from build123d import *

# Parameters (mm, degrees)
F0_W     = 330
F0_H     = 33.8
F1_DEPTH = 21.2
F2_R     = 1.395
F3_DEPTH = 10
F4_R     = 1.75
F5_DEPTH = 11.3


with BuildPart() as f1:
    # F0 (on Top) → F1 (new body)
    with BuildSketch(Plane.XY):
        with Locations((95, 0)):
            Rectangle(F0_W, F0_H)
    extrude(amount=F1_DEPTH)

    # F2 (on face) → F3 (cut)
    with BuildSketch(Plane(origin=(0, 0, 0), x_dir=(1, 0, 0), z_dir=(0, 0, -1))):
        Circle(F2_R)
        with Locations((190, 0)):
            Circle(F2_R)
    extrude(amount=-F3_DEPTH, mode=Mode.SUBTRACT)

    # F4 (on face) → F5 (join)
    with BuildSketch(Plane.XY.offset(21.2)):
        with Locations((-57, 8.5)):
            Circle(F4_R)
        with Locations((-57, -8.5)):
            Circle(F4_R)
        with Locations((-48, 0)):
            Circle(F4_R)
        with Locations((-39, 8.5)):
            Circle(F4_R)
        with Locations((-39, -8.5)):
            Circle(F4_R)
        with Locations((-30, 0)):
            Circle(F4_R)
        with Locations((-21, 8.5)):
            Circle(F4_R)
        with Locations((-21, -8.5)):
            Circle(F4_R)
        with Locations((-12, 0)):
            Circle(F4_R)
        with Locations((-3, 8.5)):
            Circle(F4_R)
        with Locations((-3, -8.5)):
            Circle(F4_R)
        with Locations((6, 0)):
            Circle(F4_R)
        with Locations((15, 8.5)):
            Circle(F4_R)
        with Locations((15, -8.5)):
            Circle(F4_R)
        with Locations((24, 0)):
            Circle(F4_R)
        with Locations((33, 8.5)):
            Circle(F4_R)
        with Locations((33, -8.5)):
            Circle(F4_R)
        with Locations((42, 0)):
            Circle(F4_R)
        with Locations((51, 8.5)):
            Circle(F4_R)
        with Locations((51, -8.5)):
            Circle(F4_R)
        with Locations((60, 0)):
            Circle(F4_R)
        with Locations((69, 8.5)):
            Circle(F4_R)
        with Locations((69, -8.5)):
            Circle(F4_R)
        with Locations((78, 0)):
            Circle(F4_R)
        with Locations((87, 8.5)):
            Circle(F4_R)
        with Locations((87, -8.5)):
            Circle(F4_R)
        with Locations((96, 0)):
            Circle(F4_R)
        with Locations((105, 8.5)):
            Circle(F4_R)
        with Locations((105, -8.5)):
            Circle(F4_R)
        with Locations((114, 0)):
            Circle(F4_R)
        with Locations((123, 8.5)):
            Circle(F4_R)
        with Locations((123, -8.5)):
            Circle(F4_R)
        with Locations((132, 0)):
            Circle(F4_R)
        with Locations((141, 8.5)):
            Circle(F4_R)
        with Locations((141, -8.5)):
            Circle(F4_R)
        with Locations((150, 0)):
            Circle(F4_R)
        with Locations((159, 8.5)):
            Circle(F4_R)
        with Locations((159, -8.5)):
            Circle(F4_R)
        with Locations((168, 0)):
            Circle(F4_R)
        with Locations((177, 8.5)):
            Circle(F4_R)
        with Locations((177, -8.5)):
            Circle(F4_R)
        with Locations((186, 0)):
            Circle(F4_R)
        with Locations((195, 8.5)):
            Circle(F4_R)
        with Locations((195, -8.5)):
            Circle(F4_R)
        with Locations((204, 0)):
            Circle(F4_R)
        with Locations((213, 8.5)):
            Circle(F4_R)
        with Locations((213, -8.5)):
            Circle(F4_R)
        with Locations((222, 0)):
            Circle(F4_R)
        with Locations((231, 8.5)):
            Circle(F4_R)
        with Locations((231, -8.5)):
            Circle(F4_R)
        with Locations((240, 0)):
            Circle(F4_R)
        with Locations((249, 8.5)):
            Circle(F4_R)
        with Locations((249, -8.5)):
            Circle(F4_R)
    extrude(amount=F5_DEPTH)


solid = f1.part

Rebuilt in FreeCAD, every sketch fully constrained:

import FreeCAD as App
import Part
import Sketcher

V = App.Vector
Q = App.Units.Quantity

doc = App.newDocument("Part")
body = doc.addObject("PartDesign::Body", "Body")

# Sketch on XY plane
sketch1 = doc.addObject("Sketcher::SketchObject", "Sketch")
body.addObject(sketch1)
sketch1.AttachmentSupport = (doc.XY_Plane, [""])
sketch1.MapMode = "FlatFace"
sketch1.addGeometry(Part.LineSegment(V(-70, 16.9, 0), V(-70, -16.9, 0)), False)
sketch1.addGeometry(Part.LineSegment(V(-70, -16.9, 0), V(260, -16.9, 0)), False)
sketch1.addGeometry(Part.LineSegment(V(260, -16.9, 0), V(260, 16.9, 0)), False)
sketch1.addGeometry(Part.LineSegment(V(260, 16.9, 0), V(-70, 16.9, 0)), False)
sketch1.addConstraint(Sketcher.Constraint("Coincident", 0, 2, 1, 1))
sketch1.addConstraint(Sketcher.Constraint("Coincident", 1, 2, 2, 1))
sketch1.addConstraint(Sketcher.Constraint("Coincident", 2, 2, 3, 1))
sketch1.addConstraint(Sketcher.Constraint("Coincident", 3, 2, 0, 1))
sketch1.addConstraint(Sketcher.Constraint("Vertical", 0))
sketch1.addConstraint(Sketcher.Constraint("Horizontal", 1))
sketch1.addConstraint(Sketcher.Constraint("Vertical", 2))
sketch1.addConstraint(Sketcher.Constraint("Horizontal", 3))
sketch1.addConstraint(Sketcher.Constraint("DistanceX", 1, 1, 1, 2, Q("330 mm")))
sketch1.addConstraint(Sketcher.Constraint("DistanceY", 0, 2, 0, 1, Q("33.8 mm")))
sketch1.addConstraint(Sketcher.Constraint("DistanceX", 0, 2, -1, 1, Q("70 mm")))
sketch1.addConstraint(Sketcher.Constraint("DistanceY", 0, 2, -1, 1, Q("16.9 mm")))
pad1 = doc.addObject("PartDesign::Pad", "Pad")
body.addObject(pad1)
pad1.Profile = sketch1
pad1.Length = 21.2

# Sketch on XY plane
sketch2 = doc.addObject("Sketcher::SketchObject", "Sketch001")
body.addObject(sketch2)
sketch2.AttachmentSupport = (doc.XY_Plane, [""])
sketch2.MapMode = "FlatFace"
sketch2.addGeometry(Part.Circle(V(0, 0, 0), V(0, 0, 1), 1.395), False)
sketch2.addGeometry(Part.Circle(V(190, 0, 0), V(0, 0, 1), 1.395), False)
sketch2.addConstraint(Sketcher.Constraint("Coincident", 0, 3, -1, 1))
sketch2.addConstraint(Sketcher.Constraint("Equal", 0, 1))
sketch2.addConstraint(Sketcher.Constraint("PointOnObject", 1, 3, -1))
sketch2.addConstraint(Sketcher.Constraint("Diameter", 0, Q("2.79 mm")))
sketch2.addConstraint(Sketcher.Constraint("DistanceX", -1, 1, 1, 3, Q("190 mm")))
pocket1 = doc.addObject("PartDesign::Pocket", "Pocket")
body.addObject(pocket1)
pocket1.Profile = sketch2
pocket1.Length = 10
pocket1.Reversed = True

# Sketch on XY plane
sketch3 = doc.addObject("Sketcher::SketchObject", "Sketch002")
body.addObject(sketch3)
sketch3.AttachmentSupport = (doc.XY_Plane, [""])
sketch3.MapMode = "FlatFace"
sketch3.AttachmentOffset = App.Placement(V(0, 0, 21.2), App.Rotation())
sketch3.addGeometry(Part.Circle(V(-57, 8.5, 0), V(0, 0, 1), 1.75), False)
sketch3.addGeometry(Part.Circle(V(-57, -8.5, 0), V(0, 0, 1), 1.75), False)
sketch3.addGeometry(Part.Circle(V(-48, 0, 0), V(0, 0, 1), 1.75), False)
sketch3.addGeometry(Part.Circle(V(-39, 8.5, 0), V(0, 0, 1), 1.75), False)
sketch3.addGeometry(Part.Circle(V(-39, -8.5, 0), V(0, 0, 1), 1.75), False)
sketch3.addGeometry(Part.Circle(V(-30, 0, 0), V(0, 0, 1), 1.75), False)
sketch3.addGeometry(Part.Circle(V(-21, 8.5, 0), V(0, 0, 1), 1.75), False)
sketch3.addGeometry(Part.Circle(V(-21, -8.5, 0), V(0, 0, 1), 1.75), False)
sketch3.addGeometry(Part.Circle(V(-12, 0, 0), V(0, 0, 1), 1.75), False)
sketch3.addGeometry(Part.Circle(V(-3, 8.5, 0), V(0, 0, 1), 1.75), False)
sketch3.addGeometry(Part.Circle(V(-3, -8.5, 0), V(0, 0, 1), 1.75), False)
sketch3.addGeometry(Part.Circle(V(6, 0, 0), V(0, 0, 1), 1.75), False)
sketch3.addGeometry(Part.Circle(V(15, 8.5, 0), V(0, 0, 1), 1.75), False)
sketch3.addGeometry(Part.Circle(V(15, -8.5, 0), V(0, 0, 1), 1.75), False)
sketch3.addGeometry(Part.Circle(V(24, 0, 0), V(0, 0, 1), 1.75), False)
sketch3.addGeometry(Part.Circle(V(33, 8.5, 0), V(0, 0, 1), 1.75), False)
sketch3.addGeometry(Part.Circle(V(33, -8.5, 0), V(0, 0, 1), 1.75), False)
sketch3.addGeometry(Part.Circle(V(42, 0, 0), V(0, 0, 1), 1.75), False)
sketch3.addGeometry(Part.Circle(V(51, 8.5, 0), V(0, 0, 1), 1.75), False)
sketch3.addGeometry(Part.Circle(V(51, -8.5, 0), V(0, 0, 1), 1.75), False)
sketch3.addGeometry(Part.Circle(V(60, 0, 0), V(0, 0, 1), 1.75), False)
sketch3.addGeometry(Part.Circle(V(69, 8.5, 0), V(0, 0, 1), 1.75), False)
sketch3.addGeometry(Part.Circle(V(69, -8.5, 0), V(0, 0, 1), 1.75), False)
sketch3.addGeometry(Part.Circle(V(78, 0, 0), V(0, 0, 1), 1.75), False)
sketch3.addGeometry(Part.Circle(V(87, 8.5, 0), V(0, 0, 1), 1.75), False)
sketch3.addGeometry(Part.Circle(V(87, -8.5, 0), V(0, 0, 1), 1.75), False)
sketch3.addGeometry(Part.Circle(V(96, 0, 0), V(0, 0, 1), 1.75), False)
sketch3.addGeometry(Part.Circle(V(105, 8.5, 0), V(0, 0, 1), 1.75), False)
sketch3.addGeometry(Part.Circle(V(105, -8.5, 0), V(0, 0, 1), 1.75), False)
sketch3.addGeometry(Part.Circle(V(114, 0, 0), V(0, 0, 1), 1.75), False)
sketch3.addGeometry(Part.Circle(V(123, 8.5, 0), V(0, 0, 1), 1.75), False)
sketch3.addGeometry(Part.Circle(V(123, -8.5, 0), V(0, 0, 1), 1.75), False)
sketch3.addGeometry(Part.Circle(V(132, 0, 0), V(0, 0, 1), 1.75), False)
sketch3.addGeometry(Part.Circle(V(141, 8.5, 0), V(0, 0, 1), 1.75), False)
sketch3.addGeometry(Part.Circle(V(141, -8.5, 0), V(0, 0, 1), 1.75), False)
sketch3.addGeometry(Part.Circle(V(150, 0, 0), V(0, 0, 1), 1.75), False)
sketch3.addGeometry(Part.Circle(V(159, 8.5, 0), V(0, 0, 1), 1.75), False)
sketch3.addGeometry(Part.Circle(V(159, -8.5, 0), V(0, 0, 1), 1.75), False)
sketch3.addGeometry(Part.Circle(V(168, 0, 0), V(0, 0, 1), 1.75), False)
sketch3.addGeometry(Part.Circle(V(177, 8.5, 0), V(0, 0, 1), 1.75), False)
sketch3.addGeometry(Part.Circle(V(177, -8.5, 0), V(0, 0, 1), 1.75), False)
sketch3.addGeometry(Part.Circle(V(186, 0, 0), V(0, 0, 1), 1.75), False)
sketch3.addGeometry(Part.Circle(V(195, 8.5, 0), V(0, 0, 1), 1.75), False)
sketch3.addGeometry(Part.Circle(V(195, -8.5, 0), V(0, 0, 1), 1.75), False)
sketch3.addGeometry(Part.Circle(V(204, 0, 0), V(0, 0, 1), 1.75), False)
sketch3.addGeometry(Part.Circle(V(213, 8.5, 0), V(0, 0, 1), 1.75), False)
sketch3.addGeometry(Part.Circle(V(213, -8.5, 0), V(0, 0, 1), 1.75), False)
sketch3.addGeometry(Part.Circle(V(222, 0, 0), V(0, 0, 1), 1.75), False)
sketch3.addGeometry(Part.Circle(V(231, 8.5, 0), V(0, 0, 1), 1.75), False)
sketch3.addGeometry(Part.Circle(V(231, -8.5, 0), V(0, 0, 1), 1.75), False)
sketch3.addGeometry(Part.Circle(V(240, 0, 0), V(0, 0, 1), 1.75), False)
sketch3.addGeometry(Part.Circle(V(249, 8.5, 0), V(0, 0, 1), 1.75), False)
sketch3.addGeometry(Part.Circle(V(249, -8.5, 0), V(0, 0, 1), 1.75), False)
sketch3.addConstraint(Sketcher.Constraint("Equal", 0, 1))
sketch3.addConstraint(Sketcher.Constraint("Equal", 1, 2))
sketch3.addConstraint(Sketcher.Constraint("Equal", 2, 3))
sketch3.addConstraint(Sketcher.Constraint("Equal", 3, 4))
sketch3.addConstraint(Sketcher.Constraint("Equal", 4, 5))
sketch3.addConstraint(Sketcher.Constraint("Equal", 5, 6))
sketch3.addConstraint(Sketcher.Constraint("Equal", 6, 7))
sketch3.addConstraint(Sketcher.Constraint("Equal", 7, 8))
sketch3.addConstraint(Sketcher.Constraint("Equal", 8, 9))
sketch3.addConstraint(Sketcher.Constraint("Equal", 9, 10))
sketch3.addConstraint(Sketcher.Constraint("Equal", 10, 11))
sketch3.addConstraint(Sketcher.Constraint("Equal", 11, 12))
sketch3.addConstraint(Sketcher.Constraint("Equal", 12, 13))
sketch3.addConstraint(Sketcher.Constraint("Equal", 13, 14))
sketch3.addConstraint(Sketcher.Constraint("Equal", 14, 15))
sketch3.addConstraint(Sketcher.Constraint("Equal", 15, 16))
sketch3.addConstraint(Sketcher.Constraint("Equal", 16, 17))
sketch3.addConstraint(Sketcher.Constraint("Equal", 17, 18))
sketch3.addConstraint(Sketcher.Constraint("Equal", 18, 19))
sketch3.addConstraint(Sketcher.Constraint("Equal", 19, 20))
sketch3.addConstraint(Sketcher.Constraint("Equal", 20, 21))
sketch3.addConstraint(Sketcher.Constraint("Equal", 21, 22))
sketch3.addConstraint(Sketcher.Constraint("Equal", 22, 23))
sketch3.addConstraint(Sketcher.Constraint("Equal", 23, 24))
sketch3.addConstraint(Sketcher.Constraint("Equal", 24, 25))
sketch3.addConstraint(Sketcher.Constraint("Equal", 25, 26))
sketch3.addConstraint(Sketcher.Constraint("Equal", 26, 27))
sketch3.addConstraint(Sketcher.Constraint("Equal", 27, 28))
sketch3.addConstraint(Sketcher.Constraint("Equal", 28, 29))
sketch3.addConstraint(Sketcher.Constraint("Equal", 29, 30))
sketch3.addConstraint(Sketcher.Constraint("Equal", 30, 31))
sketch3.addConstraint(Sketcher.Constraint("Equal", 31, 32))
sketch3.addConstraint(Sketcher.Constraint("Equal", 32, 33))
sketch3.addConstraint(Sketcher.Constraint("Equal", 33, 34))
sketch3.addConstraint(Sketcher.Constraint("Equal", 34, 35))
sketch3.addConstraint(Sketcher.Constraint("Equal", 35, 36))
sketch3.addConstraint(Sketcher.Constraint("Equal", 36, 37))
sketch3.addConstraint(Sketcher.Constraint("Equal", 37, 38))
sketch3.addConstraint(Sketcher.Constraint("Equal", 38, 39))
sketch3.addConstraint(Sketcher.Constraint("Equal", 39, 40))
sketch3.addConstraint(Sketcher.Constraint("Equal", 40, 41))
sketch3.addConstraint(Sketcher.Constraint("Equal", 41, 42))
sketch3.addConstraint(Sketcher.Constraint("Equal", 42, 43))
sketch3.addConstraint(Sketcher.Constraint("Equal", 43, 44))
sketch3.addConstraint(Sketcher.Constraint("Equal", 44, 45))
sketch3.addConstraint(Sketcher.Constraint("Equal", 45, 46))
sketch3.addConstraint(Sketcher.Constraint("Equal", 46, 47))
sketch3.addConstraint(Sketcher.Constraint("Equal", 47, 48))
sketch3.addConstraint(Sketcher.Constraint("Equal", 48, 49))
sketch3.addConstraint(Sketcher.Constraint("Equal", 49, 50))
sketch3.addConstraint(Sketcher.Constraint("Equal", 50, 51))
sketch3.addConstraint(Sketcher.Constraint("Equal", 51, 52))
sketch3.addConstraint(Sketcher.Constraint("Symmetric", 0, 3, 1, 3, -1))
sketch3.addConstraint(Sketcher.Constraint("Symmetric", 3, 3, 4, 3, -1))
sketch3.addConstraint(Sketcher.Constraint("Symmetric", 6, 3, 7, 3, -1))
sketch3.addConstraint(Sketcher.Constraint("Symmetric", 9, 3, 10, 3, -1))
sketch3.addConstraint(Sketcher.Constraint("Symmetric", 12, 3, 13, 3, -1))
sketch3.addConstraint(Sketcher.Constraint("Symmetric", 15, 3, 16, 3, -1))
sketch3.addConstraint(Sketcher.Constraint("Symmetric", 18, 3, 19, 3, -1))
sketch3.addConstraint(Sketcher.Constraint("Symmetric", 21, 3, 22, 3, -1))
sketch3.addConstraint(Sketcher.Constraint("Symmetric", 24, 3, 25, 3, -1))
sketch3.addConstraint(Sketcher.Constraint("Symmetric", 27, 3, 28, 3, -1))
sketch3.addConstraint(Sketcher.Constraint("Symmetric", 30, 3, 31, 3, -1))
sketch3.addConstraint(Sketcher.Constraint("Symmetric", 33, 3, 34, 3, -1))
sketch3.addConstraint(Sketcher.Constraint("Symmetric", 36, 3, 37, 3, -1))
sketch3.addConstraint(Sketcher.Constraint("Symmetric", 39, 3, 40, 3, -1))
sketch3.addConstraint(Sketcher.Constraint("Symmetric", 42, 3, 43, 3, -1))
sketch3.addConstraint(Sketcher.Constraint("Symmetric", 45, 3, 46, 3, -1))
sketch3.addConstraint(Sketcher.Constraint("Symmetric", 48, 3, 49, 3, -1))
sketch3.addConstraint(Sketcher.Constraint("Symmetric", 51, 3, 52, 3, -1))
sketch3.addConstraint(Sketcher.Constraint("PointOnObject", 2, 3, -1))
sketch3.addConstraint(Sketcher.Constraint("PointOnObject", 5, 3, -1))
sketch3.addConstraint(Sketcher.Constraint("PointOnObject", 8, 3, -1))
sketch3.addConstraint(Sketcher.Constraint("PointOnObject", 11, 3, -1))
sketch3.addConstraint(Sketcher.Constraint("PointOnObject", 14, 3, -1))
sketch3.addConstraint(Sketcher.Constraint("PointOnObject", 17, 3, -1))
sketch3.addConstraint(Sketcher.Constraint("PointOnObject", 20, 3, -1))
sketch3.addConstraint(Sketcher.Constraint("PointOnObject", 23, 3, -1))
sketch3.addConstraint(Sketcher.Constraint("PointOnObject", 26, 3, -1))
sketch3.addConstraint(Sketcher.Constraint("PointOnObject", 29, 3, -1))
sketch3.addConstraint(Sketcher.Constraint("PointOnObject", 32, 3, -1))
sketch3.addConstraint(Sketcher.Constraint("PointOnObject", 35, 3, -1))
sketch3.addConstraint(Sketcher.Constraint("PointOnObject", 38, 3, -1))
sketch3.addConstraint(Sketcher.Constraint("PointOnObject", 41, 3, -1))
sketch3.addConstraint(Sketcher.Constraint("PointOnObject", 44, 3, -1))
sketch3.addConstraint(Sketcher.Constraint("PointOnObject", 47, 3, -1))
sketch3.addConstraint(Sketcher.Constraint("PointOnObject", 50, 3, -1))
sketch3.addConstraint(Sketcher.Constraint("Horizontal", 0, 3, 3, 3))
sketch3.addConstraint(Sketcher.Constraint("Horizontal", 3, 3, 6, 3))
sketch3.addConstraint(Sketcher.Constraint("Horizontal", 6, 3, 9, 3))
sketch3.addConstraint(Sketcher.Constraint("Horizontal", 9, 3, 12, 3))
sketch3.addConstraint(Sketcher.Constraint("Horizontal", 12, 3, 15, 3))
sketch3.addConstraint(Sketcher.Constraint("Horizontal", 15, 3, 18, 3))
sketch3.addConstraint(Sketcher.Constraint("Horizontal", 18, 3, 21, 3))
sketch3.addConstraint(Sketcher.Constraint("Horizontal", 21, 3, 24, 3))
sketch3.addConstraint(Sketcher.Constraint("Horizontal", 24, 3, 27, 3))
sketch3.addConstraint(Sketcher.Constraint("Horizontal", 27, 3, 30, 3))
sketch3.addConstraint(Sketcher.Constraint("Horizontal", 30, 3, 33, 3))
sketch3.addConstraint(Sketcher.Constraint("Horizontal", 33, 3, 36, 3))
sketch3.addConstraint(Sketcher.Constraint("Horizontal", 36, 3, 39, 3))
sketch3.addConstraint(Sketcher.Constraint("Horizontal", 39, 3, 42, 3))
sketch3.addConstraint(Sketcher.Constraint("Horizontal", 42, 3, 45, 3))
sketch3.addConstraint(Sketcher.Constraint("Horizontal", 45, 3, 48, 3))
sketch3.addConstraint(Sketcher.Constraint("Horizontal", 48, 3, 51, 3))
sketch3.addConstraint(Sketcher.Constraint("Diameter", 0, Q("3.5 mm")))
sketch3.addConstraint(Sketcher.Constraint("DistanceX", 0, 3, -1, 1, Q("57 mm")))
sketch3.addConstraint(Sketcher.Constraint("DistanceX", 2, 3, -1, 1, Q("48 mm")))
sketch3.addConstraint(Sketcher.Constraint("DistanceX", 3, 3, -1, 1, Q("39 mm")))
sketch3.addConstraint(Sketcher.Constraint("DistanceX", 5, 3, -1, 1, Q("30 mm")))
sketch3.addConstraint(Sketcher.Constraint("DistanceX", 6, 3, -1, 1, Q("21 mm")))
sketch3.addConstraint(Sketcher.Constraint("DistanceX", 8, 3, -1, 1, Q("12 mm")))
sketch3.addConstraint(Sketcher.Constraint("DistanceX", 9, 3, -1, 1, Q("3 mm")))
sketch3.addConstraint(Sketcher.Constraint("DistanceX", -1, 1, 11, 3, Q("6 mm")))
sketch3.addConstraint(Sketcher.Constraint("DistanceX", -1, 1, 12, 3, Q("15 mm")))
sketch3.addConstraint(Sketcher.Constraint("DistanceX", -1, 1, 14, 3, Q("24 mm")))
sketch3.addConstraint(Sketcher.Constraint("DistanceX", -1, 1, 15, 3, Q("33 mm")))
sketch3.addConstraint(Sketcher.Constraint("DistanceX", -1, 1, 17, 3, Q("42 mm")))
sketch3.addConstraint(Sketcher.Constraint("DistanceX", -1, 1, 18, 3, Q("51 mm")))
sketch3.addConstraint(Sketcher.Constraint("DistanceX", -1, 1, 20, 3, Q("60 mm")))
sketch3.addConstraint(Sketcher.Constraint("DistanceX", -1, 1, 21, 3, Q("69 mm")))
sketch3.addConstraint(Sketcher.Constraint("DistanceX", -1, 1, 23, 3, Q("78 mm")))
sketch3.addConstraint(Sketcher.Constraint("DistanceX", -1, 1, 24, 3, Q("87 mm")))
sketch3.addConstraint(Sketcher.Constraint("DistanceX", -1, 1, 26, 3, Q("96 mm")))
sketch3.addConstraint(Sketcher.Constraint("DistanceX", -1, 1, 27, 3, Q("105 mm")))
sketch3.addConstraint(Sketcher.Constraint("DistanceX", -1, 1, 29, 3, Q("114 mm")))
sketch3.addConstraint(Sketcher.Constraint("DistanceX", -1, 1, 30, 3, Q("123 mm")))
sketch3.addConstraint(Sketcher.Constraint("DistanceX", -1, 1, 32, 3, Q("132 mm")))
sketch3.addConstraint(Sketcher.Constraint("DistanceX", -1, 1, 33, 3, Q("141 mm")))
sketch3.addConstraint(Sketcher.Constraint("DistanceX", -1, 1, 35, 3, Q("150 mm")))
sketch3.addConstraint(Sketcher.Constraint("DistanceX", -1, 1, 36, 3, Q("159 mm")))
sketch3.addConstraint(Sketcher.Constraint("DistanceX", -1, 1, 38, 3, Q("168 mm")))
sketch3.addConstraint(Sketcher.Constraint("DistanceX", -1, 1, 39, 3, Q("177 mm")))
sketch3.addConstraint(Sketcher.Constraint("DistanceX", -1, 1, 41, 3, Q("186 mm")))
sketch3.addConstraint(Sketcher.Constraint("DistanceX", -1, 1, 42, 3, Q("195 mm")))
sketch3.addConstraint(Sketcher.Constraint("DistanceX", -1, 1, 44, 3, Q("204 mm")))
sketch3.addConstraint(Sketcher.Constraint("DistanceX", -1, 1, 45, 3, Q("213 mm")))
sketch3.addConstraint(Sketcher.Constraint("DistanceX", -1, 1, 47, 3, Q("222 mm")))
sketch3.addConstraint(Sketcher.Constraint("DistanceX", -1, 1, 48, 3, Q("231 mm")))
sketch3.addConstraint(Sketcher.Constraint("DistanceX", -1, 1, 50, 3, Q("240 mm")))
sketch3.addConstraint(Sketcher.Constraint("DistanceX", -1, 1, 51, 3, Q("249 mm")))
sketch3.addConstraint(Sketcher.Constraint("DistanceY", 1, 3, 0, 3, Q("17 mm")))
pad2 = doc.addObject("PartDesign::Pad", "Pad001")
body.addObject(pad2)
pad2.Profile = sketch3
pad2.Length = 11.3

doc.recompute()
